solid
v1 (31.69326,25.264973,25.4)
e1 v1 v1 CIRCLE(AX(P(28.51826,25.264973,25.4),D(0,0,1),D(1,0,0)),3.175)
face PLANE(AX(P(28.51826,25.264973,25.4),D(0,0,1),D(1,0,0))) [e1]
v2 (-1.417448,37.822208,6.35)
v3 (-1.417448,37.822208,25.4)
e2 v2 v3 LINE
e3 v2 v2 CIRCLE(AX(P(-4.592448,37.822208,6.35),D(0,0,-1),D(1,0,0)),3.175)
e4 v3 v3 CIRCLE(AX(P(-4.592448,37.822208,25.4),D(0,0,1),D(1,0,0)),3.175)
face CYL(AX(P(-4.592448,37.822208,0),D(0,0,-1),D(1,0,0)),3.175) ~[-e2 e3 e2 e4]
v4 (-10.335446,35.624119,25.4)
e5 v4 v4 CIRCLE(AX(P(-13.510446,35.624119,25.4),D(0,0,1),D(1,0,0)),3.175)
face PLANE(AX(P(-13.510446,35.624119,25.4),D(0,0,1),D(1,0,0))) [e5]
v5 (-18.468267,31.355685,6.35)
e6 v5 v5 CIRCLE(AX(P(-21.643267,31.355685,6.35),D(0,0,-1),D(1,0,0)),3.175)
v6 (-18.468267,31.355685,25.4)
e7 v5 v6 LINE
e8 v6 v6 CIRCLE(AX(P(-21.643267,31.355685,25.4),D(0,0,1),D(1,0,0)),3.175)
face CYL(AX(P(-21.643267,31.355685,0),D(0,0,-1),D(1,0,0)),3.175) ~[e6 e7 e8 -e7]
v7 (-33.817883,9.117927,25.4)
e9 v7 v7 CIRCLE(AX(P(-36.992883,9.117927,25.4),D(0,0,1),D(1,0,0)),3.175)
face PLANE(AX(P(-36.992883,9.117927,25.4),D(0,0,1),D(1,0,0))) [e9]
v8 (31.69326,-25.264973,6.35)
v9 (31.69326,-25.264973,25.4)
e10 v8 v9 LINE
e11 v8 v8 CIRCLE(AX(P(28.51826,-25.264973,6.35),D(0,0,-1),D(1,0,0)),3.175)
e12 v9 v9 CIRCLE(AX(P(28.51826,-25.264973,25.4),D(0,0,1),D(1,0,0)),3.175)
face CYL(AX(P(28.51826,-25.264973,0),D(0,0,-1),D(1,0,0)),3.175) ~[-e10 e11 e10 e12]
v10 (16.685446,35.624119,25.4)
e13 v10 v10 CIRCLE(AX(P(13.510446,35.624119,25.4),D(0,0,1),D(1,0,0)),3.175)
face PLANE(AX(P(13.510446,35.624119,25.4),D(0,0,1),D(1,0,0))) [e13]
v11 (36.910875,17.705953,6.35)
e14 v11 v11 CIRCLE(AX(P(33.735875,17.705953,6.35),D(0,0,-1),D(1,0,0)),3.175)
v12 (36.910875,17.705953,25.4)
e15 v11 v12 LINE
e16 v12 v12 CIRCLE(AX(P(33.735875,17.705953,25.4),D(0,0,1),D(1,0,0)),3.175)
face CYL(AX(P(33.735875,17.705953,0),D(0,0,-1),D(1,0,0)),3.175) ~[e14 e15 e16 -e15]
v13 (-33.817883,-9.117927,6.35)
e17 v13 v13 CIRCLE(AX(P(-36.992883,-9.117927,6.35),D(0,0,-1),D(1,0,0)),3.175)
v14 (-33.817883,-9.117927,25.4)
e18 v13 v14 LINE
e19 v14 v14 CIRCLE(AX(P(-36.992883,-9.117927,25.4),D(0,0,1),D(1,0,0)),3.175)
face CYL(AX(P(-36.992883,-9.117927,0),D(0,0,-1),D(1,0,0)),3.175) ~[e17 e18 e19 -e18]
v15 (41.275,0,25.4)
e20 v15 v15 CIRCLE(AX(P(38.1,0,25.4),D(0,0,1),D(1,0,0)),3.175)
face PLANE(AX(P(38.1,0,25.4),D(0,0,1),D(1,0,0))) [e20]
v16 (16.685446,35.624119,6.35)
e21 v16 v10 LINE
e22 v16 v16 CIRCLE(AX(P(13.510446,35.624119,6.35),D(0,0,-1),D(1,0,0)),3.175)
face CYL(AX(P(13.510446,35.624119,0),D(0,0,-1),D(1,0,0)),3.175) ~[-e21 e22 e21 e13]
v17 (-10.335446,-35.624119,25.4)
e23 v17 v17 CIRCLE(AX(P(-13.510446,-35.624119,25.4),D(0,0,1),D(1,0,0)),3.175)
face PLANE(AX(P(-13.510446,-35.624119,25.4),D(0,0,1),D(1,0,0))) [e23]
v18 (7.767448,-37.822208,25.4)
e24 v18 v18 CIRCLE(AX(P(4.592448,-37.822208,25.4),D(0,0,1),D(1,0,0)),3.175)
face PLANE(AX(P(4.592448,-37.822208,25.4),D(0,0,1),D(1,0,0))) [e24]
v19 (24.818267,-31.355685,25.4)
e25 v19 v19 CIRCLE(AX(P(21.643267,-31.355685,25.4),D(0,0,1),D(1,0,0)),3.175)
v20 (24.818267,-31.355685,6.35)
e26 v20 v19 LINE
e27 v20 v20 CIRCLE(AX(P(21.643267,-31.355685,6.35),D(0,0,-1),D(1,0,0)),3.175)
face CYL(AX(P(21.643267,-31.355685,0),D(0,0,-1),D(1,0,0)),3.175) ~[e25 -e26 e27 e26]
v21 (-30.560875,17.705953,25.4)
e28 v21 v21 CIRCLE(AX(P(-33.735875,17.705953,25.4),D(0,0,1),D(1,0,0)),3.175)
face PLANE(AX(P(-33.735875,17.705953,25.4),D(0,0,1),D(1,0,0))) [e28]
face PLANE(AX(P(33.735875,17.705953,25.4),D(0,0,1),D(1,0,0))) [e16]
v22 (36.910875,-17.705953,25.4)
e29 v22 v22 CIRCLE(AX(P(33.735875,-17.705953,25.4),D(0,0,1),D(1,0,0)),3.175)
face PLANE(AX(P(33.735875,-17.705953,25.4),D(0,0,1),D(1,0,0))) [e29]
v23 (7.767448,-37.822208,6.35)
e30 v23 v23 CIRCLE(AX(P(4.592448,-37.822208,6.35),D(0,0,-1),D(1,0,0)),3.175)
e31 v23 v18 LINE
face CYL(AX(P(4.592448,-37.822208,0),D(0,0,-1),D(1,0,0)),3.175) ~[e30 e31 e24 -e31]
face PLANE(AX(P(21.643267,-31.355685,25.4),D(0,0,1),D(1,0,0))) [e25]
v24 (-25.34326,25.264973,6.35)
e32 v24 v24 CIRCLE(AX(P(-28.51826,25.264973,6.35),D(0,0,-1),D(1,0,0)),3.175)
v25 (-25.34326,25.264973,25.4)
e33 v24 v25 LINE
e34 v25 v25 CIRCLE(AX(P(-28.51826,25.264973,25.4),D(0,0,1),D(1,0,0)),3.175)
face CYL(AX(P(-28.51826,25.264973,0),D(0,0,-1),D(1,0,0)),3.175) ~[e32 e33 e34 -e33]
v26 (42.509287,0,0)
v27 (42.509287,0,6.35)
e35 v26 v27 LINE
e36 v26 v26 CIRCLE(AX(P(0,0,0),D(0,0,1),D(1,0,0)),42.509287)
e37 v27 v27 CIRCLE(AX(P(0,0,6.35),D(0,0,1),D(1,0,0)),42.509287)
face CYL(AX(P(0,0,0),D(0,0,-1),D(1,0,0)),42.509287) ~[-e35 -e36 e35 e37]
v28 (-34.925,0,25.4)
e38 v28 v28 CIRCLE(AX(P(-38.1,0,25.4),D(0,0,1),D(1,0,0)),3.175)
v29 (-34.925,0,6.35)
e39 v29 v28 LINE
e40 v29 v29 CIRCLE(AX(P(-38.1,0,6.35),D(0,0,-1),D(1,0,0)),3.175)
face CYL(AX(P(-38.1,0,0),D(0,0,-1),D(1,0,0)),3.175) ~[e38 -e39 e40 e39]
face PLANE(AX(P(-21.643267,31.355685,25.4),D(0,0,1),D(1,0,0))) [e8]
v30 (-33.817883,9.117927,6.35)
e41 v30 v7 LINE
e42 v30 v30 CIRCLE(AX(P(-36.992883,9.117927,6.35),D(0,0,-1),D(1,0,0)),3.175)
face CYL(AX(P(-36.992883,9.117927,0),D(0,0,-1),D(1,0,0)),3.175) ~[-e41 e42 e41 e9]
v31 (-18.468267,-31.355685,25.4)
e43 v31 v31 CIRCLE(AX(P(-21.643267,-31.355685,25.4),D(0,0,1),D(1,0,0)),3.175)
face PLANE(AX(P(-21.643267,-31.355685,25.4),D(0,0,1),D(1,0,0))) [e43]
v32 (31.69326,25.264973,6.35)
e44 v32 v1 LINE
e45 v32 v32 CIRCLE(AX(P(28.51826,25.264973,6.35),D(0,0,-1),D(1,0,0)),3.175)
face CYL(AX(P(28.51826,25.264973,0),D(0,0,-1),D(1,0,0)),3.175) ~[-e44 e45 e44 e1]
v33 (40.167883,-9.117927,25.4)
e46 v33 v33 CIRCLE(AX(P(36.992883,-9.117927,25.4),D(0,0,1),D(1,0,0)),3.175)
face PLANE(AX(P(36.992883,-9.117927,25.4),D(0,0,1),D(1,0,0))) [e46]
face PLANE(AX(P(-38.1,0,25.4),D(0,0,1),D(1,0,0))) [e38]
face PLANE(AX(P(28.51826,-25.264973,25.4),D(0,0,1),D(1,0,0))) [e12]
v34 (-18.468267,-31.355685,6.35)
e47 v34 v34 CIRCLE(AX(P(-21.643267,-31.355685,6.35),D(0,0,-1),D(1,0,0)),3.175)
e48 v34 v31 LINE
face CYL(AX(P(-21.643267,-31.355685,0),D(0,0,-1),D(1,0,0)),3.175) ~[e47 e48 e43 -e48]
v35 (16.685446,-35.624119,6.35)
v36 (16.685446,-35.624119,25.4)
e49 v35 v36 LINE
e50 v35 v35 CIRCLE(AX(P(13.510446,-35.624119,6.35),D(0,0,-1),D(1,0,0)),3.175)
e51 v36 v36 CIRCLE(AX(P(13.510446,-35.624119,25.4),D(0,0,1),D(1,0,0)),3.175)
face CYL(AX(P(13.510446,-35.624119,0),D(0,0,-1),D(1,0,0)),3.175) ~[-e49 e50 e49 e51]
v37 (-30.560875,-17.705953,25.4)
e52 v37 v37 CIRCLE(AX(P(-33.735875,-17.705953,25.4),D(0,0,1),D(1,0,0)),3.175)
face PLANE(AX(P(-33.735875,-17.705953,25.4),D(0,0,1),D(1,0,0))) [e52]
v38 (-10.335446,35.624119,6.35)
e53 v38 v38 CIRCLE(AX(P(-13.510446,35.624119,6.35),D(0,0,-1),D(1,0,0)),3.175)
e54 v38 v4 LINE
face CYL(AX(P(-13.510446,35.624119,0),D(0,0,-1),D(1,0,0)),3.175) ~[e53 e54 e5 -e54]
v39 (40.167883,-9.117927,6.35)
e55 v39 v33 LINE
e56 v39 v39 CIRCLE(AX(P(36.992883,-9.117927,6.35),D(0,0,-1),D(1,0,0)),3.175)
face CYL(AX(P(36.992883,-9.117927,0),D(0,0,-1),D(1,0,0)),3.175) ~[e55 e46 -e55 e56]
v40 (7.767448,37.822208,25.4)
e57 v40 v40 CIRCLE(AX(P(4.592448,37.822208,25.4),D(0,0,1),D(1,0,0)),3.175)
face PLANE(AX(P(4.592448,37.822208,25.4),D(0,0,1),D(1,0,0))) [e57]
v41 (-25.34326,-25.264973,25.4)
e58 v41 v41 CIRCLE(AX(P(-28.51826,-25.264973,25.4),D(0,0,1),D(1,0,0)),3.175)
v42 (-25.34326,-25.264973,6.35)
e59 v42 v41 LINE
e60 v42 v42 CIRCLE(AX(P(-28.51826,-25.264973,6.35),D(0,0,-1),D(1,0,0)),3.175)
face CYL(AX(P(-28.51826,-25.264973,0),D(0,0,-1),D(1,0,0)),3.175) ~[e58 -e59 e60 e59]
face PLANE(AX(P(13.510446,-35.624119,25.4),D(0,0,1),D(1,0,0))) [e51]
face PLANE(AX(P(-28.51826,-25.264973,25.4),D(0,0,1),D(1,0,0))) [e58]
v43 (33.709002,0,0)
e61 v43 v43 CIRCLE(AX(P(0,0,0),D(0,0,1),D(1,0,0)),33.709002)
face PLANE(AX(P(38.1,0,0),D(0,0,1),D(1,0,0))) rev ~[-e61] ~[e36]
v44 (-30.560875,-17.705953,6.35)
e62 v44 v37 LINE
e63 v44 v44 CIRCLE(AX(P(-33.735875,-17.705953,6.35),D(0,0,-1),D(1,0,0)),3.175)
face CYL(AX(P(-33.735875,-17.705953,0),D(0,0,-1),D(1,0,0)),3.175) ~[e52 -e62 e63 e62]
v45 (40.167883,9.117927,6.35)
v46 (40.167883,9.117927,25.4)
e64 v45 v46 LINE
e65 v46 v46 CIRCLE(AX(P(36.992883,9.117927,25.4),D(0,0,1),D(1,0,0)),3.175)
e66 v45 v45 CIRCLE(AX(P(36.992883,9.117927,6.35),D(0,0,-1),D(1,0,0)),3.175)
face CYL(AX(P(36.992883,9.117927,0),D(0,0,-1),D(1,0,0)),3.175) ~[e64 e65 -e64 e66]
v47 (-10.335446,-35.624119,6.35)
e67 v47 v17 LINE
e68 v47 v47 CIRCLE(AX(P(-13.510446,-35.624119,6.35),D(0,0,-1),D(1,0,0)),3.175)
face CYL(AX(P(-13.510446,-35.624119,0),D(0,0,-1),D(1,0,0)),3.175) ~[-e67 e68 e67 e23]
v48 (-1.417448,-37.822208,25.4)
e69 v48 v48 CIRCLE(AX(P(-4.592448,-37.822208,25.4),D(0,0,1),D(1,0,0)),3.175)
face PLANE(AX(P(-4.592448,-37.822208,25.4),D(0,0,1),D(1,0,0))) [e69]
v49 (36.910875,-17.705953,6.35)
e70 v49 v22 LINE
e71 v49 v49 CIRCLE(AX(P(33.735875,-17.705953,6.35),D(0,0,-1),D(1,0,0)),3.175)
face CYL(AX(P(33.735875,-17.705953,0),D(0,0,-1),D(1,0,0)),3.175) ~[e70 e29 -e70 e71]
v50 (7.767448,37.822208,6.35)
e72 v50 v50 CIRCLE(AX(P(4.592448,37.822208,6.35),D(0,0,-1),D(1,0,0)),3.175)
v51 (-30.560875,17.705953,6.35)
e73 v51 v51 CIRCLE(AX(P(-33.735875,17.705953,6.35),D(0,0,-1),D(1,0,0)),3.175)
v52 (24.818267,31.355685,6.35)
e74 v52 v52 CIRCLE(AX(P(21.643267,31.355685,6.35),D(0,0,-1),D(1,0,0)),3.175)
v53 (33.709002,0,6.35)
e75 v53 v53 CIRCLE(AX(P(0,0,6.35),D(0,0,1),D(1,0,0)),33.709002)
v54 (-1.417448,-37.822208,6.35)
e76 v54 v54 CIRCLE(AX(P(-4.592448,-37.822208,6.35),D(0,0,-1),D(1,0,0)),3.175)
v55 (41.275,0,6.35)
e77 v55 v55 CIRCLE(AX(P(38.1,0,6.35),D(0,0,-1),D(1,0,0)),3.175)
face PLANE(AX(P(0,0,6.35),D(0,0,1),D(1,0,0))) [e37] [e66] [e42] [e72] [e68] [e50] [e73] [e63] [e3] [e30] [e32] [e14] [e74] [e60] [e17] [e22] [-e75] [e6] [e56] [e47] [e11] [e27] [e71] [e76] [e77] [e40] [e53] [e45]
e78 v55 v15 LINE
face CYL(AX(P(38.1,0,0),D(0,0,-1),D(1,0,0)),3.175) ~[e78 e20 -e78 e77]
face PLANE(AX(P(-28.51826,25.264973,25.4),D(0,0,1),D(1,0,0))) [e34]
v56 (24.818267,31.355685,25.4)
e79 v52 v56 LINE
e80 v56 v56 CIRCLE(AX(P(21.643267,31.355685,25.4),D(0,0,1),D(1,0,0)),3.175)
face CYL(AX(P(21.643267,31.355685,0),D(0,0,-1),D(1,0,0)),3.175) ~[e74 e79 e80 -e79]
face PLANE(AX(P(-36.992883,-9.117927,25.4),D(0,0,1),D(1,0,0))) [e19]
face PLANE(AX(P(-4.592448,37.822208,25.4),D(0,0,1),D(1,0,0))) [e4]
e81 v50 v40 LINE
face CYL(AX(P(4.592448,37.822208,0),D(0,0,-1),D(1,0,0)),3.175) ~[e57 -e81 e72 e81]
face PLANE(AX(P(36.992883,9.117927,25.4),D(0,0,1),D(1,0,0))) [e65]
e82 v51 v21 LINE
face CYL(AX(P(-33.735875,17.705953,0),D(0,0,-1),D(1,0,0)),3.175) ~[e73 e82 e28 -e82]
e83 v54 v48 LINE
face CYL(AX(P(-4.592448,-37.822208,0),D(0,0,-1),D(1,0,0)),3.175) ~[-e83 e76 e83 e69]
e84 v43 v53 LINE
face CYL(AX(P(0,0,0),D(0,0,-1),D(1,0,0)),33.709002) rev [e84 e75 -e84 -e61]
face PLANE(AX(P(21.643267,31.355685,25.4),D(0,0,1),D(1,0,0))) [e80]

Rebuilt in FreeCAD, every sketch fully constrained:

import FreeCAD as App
import Part
import Sketcher
Q = App.Units.Quantity

doc = App.newDocument("Part")
params = doc.addObject("Spreadsheet::Sheet", "Params")
for row, (alias, value) in enumerate([
    ("pad1_length", "0.25 in"),
    ("sketch2_diameter", "0.25 in"),
    ("pad2_length", "1 in"),
], start=1):
    params.set(f"A{row}", alias)
    params.set(f"B{row}", "=" + value)
    params.setAlias(f"B{row}", alias)

body = doc.addObject("PartDesign::Body", "Body")

# Sketch on XY plane
sketch1 = body.newObject("Sketcher::SketchObject", "Sketch")
sketch1.AttachmentSupport = (doc.getObject("XY_Plane"), [""])
sketch1.MapMode = "FlatFace"
sketch1.addGeometry([
    Part.Circle(App.Vector(0, 0, 0), App.Vector(0, 0, 1), 43),
    Part.Circle(App.Vector(0, 0, 0), App.Vector(0, 0, 1), 34),
], False)
sketch1.addConstraint([
    Sketcher.Constraint("Coincident", 0, 3, -1, 1),
    Sketcher.Constraint("Coincident", 1, 3, -1, 1),
    Sketcher.Constraint("Diameter", 0, 85.018574),
    Sketcher.Constraint("Diameter", 1, 67.418004),
])
pad1 = body.newObject("PartDesign::Pad", "Pad")
pad1.Profile = sketch1
pad1.setExpression("Length", "Params.pad1_length")

# Sketch on XY plane
sketch2 = body.newObject("Sketcher::SketchObject", "Sketch001")
sketch2.AttachmentSupport = (doc.getObject("XY_Plane"), [""])
sketch2.MapMode = "FlatFace"
sketch2.addGeometry([
    Part.Circle(App.Vector(38.1, 0, 0), App.Vector(0, 0, 1), 3.2),  # 0
    Part.Circle(App.Vector(37, -9.1, 0), App.Vector(0, 0, 1), 3.2),  # 1
    Part.Circle(App.Vector(33.7, -17.7, 0), App.Vector(0, 0, 1), 3.2),  # 2
    Part.Circle(App.Vector(28.5, -25.3, 0), App.Vector(0, 0, 1), 3.2),  # 3
    Part.Circle(App.Vector(21.6, -31.4, 0), App.Vector(0, 0, 1), 3.2),  # 4
    Part.Circle(App.Vector(13.5, -35.6, 0), App.Vector(0, 0, 1), 3.2),  # 5
    Part.Circle(App.Vector(4.6, -37.8, 0), App.Vector(0, 0, 1), 3.2),  # 6
    Part.Circle(App.Vector(-4.6, -37.8, 0), App.Vector(0, 0, 1), 3.2),  # 7
    Part.Circle(App.Vector(-13.5, -35.6, 0), App.Vector(0, 0, 1), 3.2),  # 8
    Part.Circle(App.Vector(-21.6, -31.4, 0), App.Vector(0, 0, 1), 3.2),  # 9
    Part.Circle(App.Vector(-28.5, -25.3, 0), App.Vector(0, 0, 1), 3.2),  # 10
    Part.Circle(App.Vector(-33.7, -17.7, 0), App.Vector(0, 0, 1), 3.2),  # 11
    Part.Circle(App.Vector(-37, -9.1, 0), App.Vector(0, 0, 1), 3.2),  # 12
    Part.Circle(App.Vector(-38.1, 0, 0), App.Vector(0, 0, 1), 3.2),  # 13
    Part.Circle(App.Vector(-37, 9.1, 0), App.Vector(0, 0, 1), 3.2),  # 14
    Part.Circle(App.Vector(-33.7, 17.7, 0), App.Vector(0, 0, 1), 3.2),  # 15
    Part.Circle(App.Vector(-28.5, 25.3, 0), App.Vector(0, 0, 1), 3.2),  # 16
    Part.Circle(App.Vector(-21.6, 31.4, 0), App.Vector(0, 0, 1), 3.2),  # 17
    Part.Circle(App.Vector(-13.5, 35.6, 0), App.Vector(0, 0, 1), 3.2),  # 18
    Part.Circle(App.Vector(-4.6, 37.8, 0), App.Vector(0, 0, 1), 3.2),  # 19
    Part.Circle(App.Vector(4.6, 37.8, 0), App.Vector(0, 0, 1), 3.2),  # 20
    Part.Circle(App.Vector(13.5, 35.6, 0), App.Vector(0, 0, 1), 3.2),  # 21
    Part.Circle(App.Vector(21.6, 31.4, 0), App.Vector(0, 0, 1), 3.2),  # 22
    Part.Circle(App.Vector(28.5, 25.3, 0), App.Vector(0, 0, 1), 3.2),  # 23
    Part.Circle(App.Vector(33.7, 17.7, 0), App.Vector(0, 0, 1), 3.2),  # 24
    Part.Circle(App.Vector(37, 9.1, 0), App.Vector(0, 0, 1), 3.2),  # 25
], False)
sketch2.addConstraint([
    Sketcher.Constraint("Equal", 0, 1),
    Sketcher.Constraint("Equal", 1, 2),
    Sketcher.Constraint("Equal", 2, 3),
    Sketcher.Constraint("Equal", 3, 4),
    Sketcher.Constraint("Equal", 4, 5),
    Sketcher.Constraint("Equal", 5, 6),
    Sketcher.Constraint("Equal", 6, 7),
    Sketcher.Constraint("Equal", 7, 8),
    Sketcher.Constraint("Equal", 8, 9),
    Sketcher.Constraint("Equal", 9, 10),
    Sketcher.Constraint("Equal", 10, 11),
    Sketcher.Constraint("Equal", 11, 12),
    Sketcher.Constraint("Equal", 12, 13),
    Sketcher.Constraint("Equal", 13, 14),
    Sketcher.Constraint("Equal", 14, 15),
    Sketcher.Constraint("Equal", 15, 16),
    Sketcher.Constraint("Equal", 16, 17),
    Sketcher.Constraint("Equal", 17, 18),
    Sketcher.Constraint("Equal", 18, 19),
    Sketcher.Constraint("Equal", 19, 20),
    Sketcher.Constraint("Equal", 20, 21),
    Sketcher.Constraint("Equal", 21, 22),
    Sketcher.Constraint("Equal", 22, 23),
    Sketcher.Constraint("Equal", 23, 24),
    Sketcher.Constraint("Equal", 24, 25),
    Sketcher.Constraint("Symmetric", 0, 3, 13, 3, -1, 1),
    Sketcher.Constraint("Symmetric", 1, 3, 14, 3, -1, 1),
    Sketcher.Constraint("Symmetric", 2, 3, 15, 3, -1, 1),
    Sketcher.Constraint("Symmetric", 3, 3, 16, 3, -1, 1),
    Sketcher.Constraint("Symmetric", 4, 3, 17, 3, -1, 1),
    Sketcher.Constraint("Symmetric", 5, 3, 18, 3, -1, 1),
    Sketcher.Constraint("Symmetric", 6, 3, 19, 3, -1, 1),
    Sketcher.Constraint("Symmetric", 7, 3, 20, 3, -1, 1),
    Sketcher.Constraint("Symmetric", 8, 3, 21, 3, -1, 1),
    Sketcher.Constraint("Symmetric", 9, 3, 22, 3, -1, 1),
    Sketcher.Constraint("Symmetric", 10, 3, 23, 3, -1, 1),
    Sketcher.Constraint("Symmetric", 11, 3, 24, 3, -1, 1),
    Sketcher.Constraint("Symmetric", 12, 3, 25, 3, -1, 1),
    Sketcher.Constraint("Symmetric", 6, 3, 7, 3, -2),
    Sketcher.Constraint("Symmetric", 5, 3, 8, 3, -2),
    Sketcher.Constraint("Symmetric", 4, 3, 9, 3, -2),
    Sketcher.Constraint("Symmetric", 3, 3, 10, 3, -2),
    Sketcher.Constraint("Symmetric", 2, 3, 11, 3, -2),
    Sketcher.Constraint("Symmetric", 1, 3, 12, 3, -2),
    Sketcher.Constraint("PointOnObject", 0, 3, -1),
    Sketcher.Constraint("Diameter", 0, Q("0.25 in")),
    Sketcher.Constraint("DistanceX", -1, 1, 0, 3, Q("1.5 in")),
    Sketcher.Constraint("DistanceX", 6, 3, 5, 3, 8.917998),
    Sketcher.Constraint("DistanceY", 10, 3, 14, 3, 34.3829),
    Sketcher.Constraint("DistanceX", -1, 1, 3, 3, 28.51826),
    Sketcher.Constraint("DistanceY", 5, 3, -1, 1, 35.624119),
    Sketcher.Constraint("DistanceY", 6, 3, -1, 1, 37.822208),
    Sketcher.Constraint("DistanceY", 3, 3, 2, 3, 7.55902),
    Sketcher.Constraint("DistanceX", 5, 3, 4, 3, 8.132821),
    Sketcher.Constraint("DistanceX", 5, 3, 2, 3, 20.225429),
    Sketcher.Constraint("DistanceY", 5, 3, 1, 3, 26.506192),
    Sketcher.Constraint("DistanceX", 7, 3, 3, 3, 33.110708),
    Sketcher.Constraint("DistanceX", -1, 1, 1, 3, 36.992883),
    Sketcher.Constraint("DistanceY", 4, 3, -1, 1, 31.355685),
])
sketch2.setExpression("Constraints[45]", "Params.sketch2_diameter")
pad2 = body.newObject("PartDesign::Pad", "Pad001")
pad2.Profile = sketch2
pad2.setExpression("Length", "Params.pad2_length")

doc.recompute()
